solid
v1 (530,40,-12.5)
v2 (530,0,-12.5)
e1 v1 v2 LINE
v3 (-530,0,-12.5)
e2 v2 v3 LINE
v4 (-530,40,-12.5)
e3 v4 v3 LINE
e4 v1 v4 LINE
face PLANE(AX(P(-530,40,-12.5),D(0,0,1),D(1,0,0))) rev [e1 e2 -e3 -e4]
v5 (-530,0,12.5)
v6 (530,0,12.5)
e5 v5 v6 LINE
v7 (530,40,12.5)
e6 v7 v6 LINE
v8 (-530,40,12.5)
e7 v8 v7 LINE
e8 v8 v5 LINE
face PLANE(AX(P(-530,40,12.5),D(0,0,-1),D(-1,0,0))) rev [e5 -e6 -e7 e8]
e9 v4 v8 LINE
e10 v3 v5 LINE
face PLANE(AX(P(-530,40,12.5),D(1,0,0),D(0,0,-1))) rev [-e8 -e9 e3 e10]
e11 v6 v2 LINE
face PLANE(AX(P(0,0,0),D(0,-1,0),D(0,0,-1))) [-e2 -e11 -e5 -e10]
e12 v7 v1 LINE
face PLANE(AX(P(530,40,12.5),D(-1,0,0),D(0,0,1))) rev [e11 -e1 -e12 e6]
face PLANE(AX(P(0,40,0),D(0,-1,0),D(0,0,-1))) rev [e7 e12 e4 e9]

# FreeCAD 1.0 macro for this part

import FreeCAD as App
import Part
import Sketcher
Q = App.Units.Quantity

doc = App.newDocument("Part")
params = doc.addObject("Spreadsheet::Sheet", "Params")
for row, (alias, value) in enumerate([
    ("sketch1_width", "1060 mm"),
    ("sketch1_height", "25 mm"),
    ("pad1_length", "40 mm"),
], start=1):
    params.set(f"A{row}", alias)
    params.set(f"B{row}", "=" + value)
    params.setAlias(f"B{row}", alias)

body = doc.addObject("PartDesign::Body", "Body")

sketch1 = doc.addObject("Sketcher::SketchObject", "Sketch")
body.addObject(sketch1)
sketch1.AttachmentSupport = (doc.XZ_Plane, [""])
sketch1.MapMode = "FlatFace"
sketch1.addGeometry([
    Part.LineSegment(App.Vector(-530, -12, 0), App.Vector(-530, 12, 0)),
    Part.LineSegment(App.Vector(-530, 12, 0), App.Vector(530, 12, 0)),
    Part.LineSegment(App.Vector(530, 12, 0), App.Vector(530, -12, 0)),
    Part.LineSegment(App.Vector(530, -12, 0), App.Vector(-530, -12, 0)),
], False)
sketch1.addConstraint([
    Sketcher.Constraint("Coincident", 0, 2, 1, 1),
    Sketcher.Constraint("Coincident", 1, 2, 2, 1),
    Sketcher.Constraint("Coincident", 2, 2, 3, 1),
    Sketcher.Constraint("Coincident", 3, 2, 0, 1),
    Sketcher.Constraint("Vertical", 0),
    Sketcher.Constraint("Horizontal", 1),
    Sketcher.Constraint("Vertical", 2),
    Sketcher.Constraint("Horizontal", 3),
    Sketcher.Constraint("Symmetric", 0, 2, 2, 2, -1, 1),
    Sketcher.Constraint("DistanceX", 1, 1, 1, 2, Q("1060 mm")),
    Sketcher.Constraint("DistanceY", 0, 1, 0, 2, Q("25 mm")),
])
sketch1.setExpression("Constraints[9]", "Params.sketch1_width")
sketch1.setExpression("Constraints[10]", "Params.sketch1_height")
pad1 = doc.addObject("PartDesign::Pad", "Pad")
body.addObject(pad1)
pad1.Profile = sketch1
pad1.setExpression("Length", "Params.pad1_length")
pad1.Reversed = True

doc.recompute()
